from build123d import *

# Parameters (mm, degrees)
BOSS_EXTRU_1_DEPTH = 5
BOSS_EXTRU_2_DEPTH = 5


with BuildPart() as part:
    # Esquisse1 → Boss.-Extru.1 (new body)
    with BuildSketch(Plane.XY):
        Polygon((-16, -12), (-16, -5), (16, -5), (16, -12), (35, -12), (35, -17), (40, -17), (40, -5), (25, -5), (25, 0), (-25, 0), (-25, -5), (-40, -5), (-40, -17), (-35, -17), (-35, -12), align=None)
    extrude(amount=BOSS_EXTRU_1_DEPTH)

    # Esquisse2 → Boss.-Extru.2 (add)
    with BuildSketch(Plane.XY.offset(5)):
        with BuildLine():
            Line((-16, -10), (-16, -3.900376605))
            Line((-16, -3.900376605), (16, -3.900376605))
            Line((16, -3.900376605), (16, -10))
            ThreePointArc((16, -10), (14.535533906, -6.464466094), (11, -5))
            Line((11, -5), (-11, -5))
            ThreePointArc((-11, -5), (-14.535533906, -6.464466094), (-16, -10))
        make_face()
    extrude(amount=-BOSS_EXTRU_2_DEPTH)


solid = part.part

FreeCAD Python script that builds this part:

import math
import FreeCAD as App
import Part
import Sketcher
from FreeCAD import Vector


def add_polygon(sketch, points):
    """Adds a closed chain of lines whose ends are joined by coincident constraints."""
    first, n = sketch.GeometryCount, len(points)
    for a, b in zip(points, points[1:] + points[:1]):
        sketch.addGeometry(Part.LineSegment(App.Vector(*a, 0), App.Vector(*b, 0)), False)
    for i in range(n):
        sketch.addConstraint(Sketcher.Constraint("Coincident", first + i, 2, first + (i + 1) % n, 1))

doc = App.newDocument("Part")
params = doc.addObject("Spreadsheet::Sheet", "Params")
for row, (alias, value) in enumerate([
    ("sketch1_width", "32 mm"),
    ("sketch1_width2", "19 mm"),
    ("sketch1_width3", "5 mm"),
    ("sketch1_width4", "15 mm"),
    ("sketch1_height", "7 mm"),
    ("pad1_length", "5 mm"),
    ("sketch2_radius", "5 mm"),
    ("sketch2_width", "22 mm"),
    ("pad2_length", "5 mm"),
], start=1):
    params.set(f"A{row}", alias)
    params.set(f"B{row}", "=" + value)
    params.setAlias(f"B{row}", alias)

body = doc.addObject("PartDesign::Body", "Body")

# Sketch on XY plane
sketch1 = body.newObject("Sketcher::SketchObject", "Sketch")
sketch1.AttachmentSupport = (doc.getObject("XY_Plane"), [""])
sketch1.MapMode = "FlatFace"
add_polygon(sketch1, [(-16, -12), (-16, -5), (16, -5), (16, -12), (35, -12), (35, -17), (40, -17), (40, -5), (25, -5), (25, 0), (-25, 0), (-25, -5), (-40, -5), (-40, -17), (-35, -17), (-35, -12)])  # lines 0-15
sketch1.addConstraint([
    Sketcher.Constraint("Vertical", 0),
    Sketcher.Constraint("Horizontal", 1),
    Sketcher.Constraint("Vertical", 2),
    Sketcher.Constraint("Horizontal", 3),
    Sketcher.Constraint("Vertical", 4),
    Sketcher.Constraint("Horizontal", 5),
    Sketcher.Constraint("Vertical", 6),
    Sketcher.Constraint("Horizontal", 7),
    Sketcher.Constraint("Vertical", 8),
    Sketcher.Constraint("Horizontal", 9),
    Sketcher.Constraint("Vertical", 10),
    Sketcher.Constraint("Horizontal", 11),
    Sketcher.Constraint("Vertical", 12),
    Sketcher.Constraint("Horizontal", 13),
    Sketcher.Constraint("Vertical", 14),
    Sketcher.Constraint("Horizontal", 15),
    Sketcher.Constraint("Symmetric", 8, 2, 9, 2, -1, 1),
    Sketcher.Constraint("Symmetric", 6, 2, 11, 2, -2),
    Sketcher.Constraint("Symmetric", 4, 2, 13, 2, -2),
    Sketcher.Constraint("Symmetric", 2, 2, 15, 2, -2),
    Sketcher.Constraint("Horizontal", 1, 2, 6, 2),
    Sketcher.Constraint("Equal", 13, 4),
    Sketcher.Constraint("Equal", 4, 8),
    Sketcher.Constraint("DistanceX", 1, 1, 1, 2, 32.0),
    Sketcher.Constraint("DistanceX", 3, 1, 3, 2, 19.0),
    Sketcher.Constraint("DistanceX", 5, 1, 5, 2, 5.0),
    Sketcher.Constraint("DistanceX", 7, 2, 7, 1, 15.0),
    Sketcher.Constraint("DistanceY", 0, 1, 0, 2, 7.0),
])
sketch1.setExpression("Constraints[39]", "Params.sketch1_width")
sketch1.setExpression("Constraints[40]", "Params.sketch1_width2")
sketch1.setExpression("Constraints[41]", "Params.sketch1_width3")
sketch1.setExpression("Constraints[42]", "Params.sketch1_width4")
sketch1.setExpression("Constraints[43]", "Params.sketch1_height")
pad1 = body.newObject("PartDesign::Pad", "Pad")
pad1.Profile = sketch1
pad1.setExpression("Length", "Params.pad1_length")

# Sketch on XY plane
sketch2 = body.newObject("Sketcher::SketchObject", "Sketch001")
sketch2.AttachmentSupport = (doc.getObject("XY_Plane"), [""])
sketch2.MapMode = "FlatFace"
sketch2.AttachmentOffset = App.Placement(Vector(0, 0, 5), App.Rotation())
sketch2.addGeometry([
    Part.LineSegment(Vector(-16, -3.900377, 0), Vector(-16, -10, 0)),  # 0
    Part.ArcOfCircle(Part.Circle(Vector(-11, -10, 0), Vector(0, 0, 1), 5), math.radians(90), math.radians(180)),  # 1
    Part.LineSegment(Vector(-11, -5, 0), Vector(11, -5, 0)),  # 2
    Part.ArcOfCircle(Part.Circle(Vector(11, -10, 0), Vector(0, 0, 1), 5), math.radians(0), math.radians(90)),  # 3
    Part.LineSegment(Vector(16, -10, 0), Vector(16, -3.900377, 0)),  # 4
    Part.LineSegment(Vector(16, -3.900377, 0), Vector(-16, -3.900377, 0)),  # 5
], False)
sketch2.addConstraint([
    Sketcher.Constraint("Tangent", 0, 2, 1, 2),
    Sketcher.Constraint("Tangent", 1, 1, 2, 1),
    Sketcher.Constraint("Tangent", 2, 2, 3, 2),
    Sketcher.Constraint("Tangent", 3, 1, 4, 1),
    Sketcher.Constraint("Coincident", 4, 2, 5, 1),
    Sketcher.Constraint("Coincident", 5, 2, 0, 1),
    Sketcher.Constraint("Vertical", 0),
    Sketcher.Constraint("Horizontal", 2),
    Sketcher.Constraint("Vertical", 4),
    Sketcher.Constraint("Horizontal", 5),
    Sketcher.Constraint("Equal", 1, 3),
    Sketcher.Constraint("Radius", 1, 5.0),
    Sketcher.Constraint("DistanceX", 2, 1, 2, 2, 22.0),
    Sketcher.Constraint("DistanceX", 1, 3, -1, 1, 11.0),
    Sketcher.Constraint("DistanceY", 1, 3, -1, 1, 10.0),
    Sketcher.Constraint("DistanceY", 0, 2, 0, 1, 6.099623),
])
sketch2.setExpression("Constraints[11]", "Params.sketch2_radius")
sketch2.setExpression("Constraints[12]", "Params.sketch2_width")
pad2 = body.newObject("PartDesign::Pad", "Pad001")
pad2.Profile = sketch2
pad2.setExpression("Length", "Params.pad2_length")
pad2.Reversed = True

doc.recompute()
